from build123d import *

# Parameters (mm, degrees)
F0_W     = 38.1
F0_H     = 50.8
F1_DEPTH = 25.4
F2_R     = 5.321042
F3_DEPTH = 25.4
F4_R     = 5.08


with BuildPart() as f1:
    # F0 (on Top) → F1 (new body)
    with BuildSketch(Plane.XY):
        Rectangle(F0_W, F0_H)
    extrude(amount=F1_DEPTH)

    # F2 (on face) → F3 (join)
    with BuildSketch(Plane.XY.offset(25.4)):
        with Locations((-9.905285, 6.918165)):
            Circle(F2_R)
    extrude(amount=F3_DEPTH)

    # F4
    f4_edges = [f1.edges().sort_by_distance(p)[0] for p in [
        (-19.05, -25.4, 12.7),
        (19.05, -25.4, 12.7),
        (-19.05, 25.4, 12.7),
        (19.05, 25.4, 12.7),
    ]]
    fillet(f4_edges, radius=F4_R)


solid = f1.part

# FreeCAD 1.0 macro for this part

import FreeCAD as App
import Part
import Sketcher
from FreeCAD import Vector
Q = App.Units.Quantity


def edges_at(feature, points):
    """Names of the edges that pass closest to the given points."""
    edges = feature.Shape.Edges
    near = lambda p: min(range(len(edges)), key=lambda i: edges[i].distToShape(Part.Vertex(*p))[0])
    return sorted({f"Edge{near(p) + 1}" for p in points})


def add_polygon(sketch, points):
    """Adds a closed chain of lines whose ends are joined by coincident constraints."""
    first, n = sketch.GeometryCount, len(points)
    for a, b in zip(points, points[1:] + points[:1]):
        sketch.addGeometry(Part.LineSegment(App.Vector(*a, 0), App.Vector(*b, 0)), False)
    for i in range(n):
        sketch.addConstraint(Sketcher.Constraint("Coincident", first + i, 2, first + (i + 1) % n, 1))

doc = App.newDocument("Part")
body = doc.addObject("PartDesign::Body", "Body")

# Sketch on XY plane
sketch1 = body.newObject("Sketcher::SketchObject", "Sketch")
sketch1.AttachmentSupport = (doc.getObject("XY_Plane"), [""])
sketch1.MapMode = "FlatFace"
add_polygon(sketch1, [(-19.05, 25.4), (-19.05, -25.4), (19.05, -25.4), (19.05, 25.4)])  # lines 0-3
sketch1.addConstraint([
    Sketcher.Constraint("Vertical", 0),
    Sketcher.Constraint("Horizontal", 1),
    Sketcher.Constraint("Vertical", 2),
    Sketcher.Constraint("Horizontal", 3),
    Sketcher.Constraint("Symmetric", 0, 2, 2, 2, -1, 1),
    Sketcher.Constraint("DistanceY", 0, 2, 0, 1, Q("2 in")),
    Sketcher.Constraint("DistanceX", 1, 1, 1, 2, Q("1.5 in")),
])
pad1 = body.newObject("PartDesign::Pad", "Pad")
pad1.Profile = sketch1
pad1.Length = Q("1 in")

# Sketch on XY plane
sketch2 = body.newObject("Sketcher::SketchObject", "Sketch001")
sketch2.AttachmentSupport = (doc.getObject("XY_Plane"), [""])
sketch2.MapMode = "FlatFace"
sketch2.AttachmentOffset = App.Placement(Vector(0, 0, 1 * 25.4), App.Rotation())
sketch2.addGeometry(Part.Circle(Vector(-9.905285, 6.918165, 0), Vector(0, 0, 1), 5.321042), False)
sketch2.addConstraint([
    Sketcher.Constraint("Diameter", 0, 10.642084),
    Sketcher.Constraint("DistanceX", 0, 3, -1, 1, 9.905285),
    Sketcher.Constraint("DistanceY", -1, 1, 0, 3, 6.918165),
])
pad2 = body.newObject("PartDesign::Pad", "Pad001")
pad2.Profile = sketch2
pad2.Length = Q("1 in")
doc.recompute()

fillet = body.newObject("PartDesign::Fillet", "Fillet")
fillet.Base = (pad2, edges_at(pad2, [
    (-19.05, -25.4, 12.7),
    (19.05, -25.4, 12.7),
    (-19.05, 25.4, 12.7),
    (19.05, 25.4, 12.7),
]))
fillet.Radius = Q("0.2 in")

doc.recompute()
